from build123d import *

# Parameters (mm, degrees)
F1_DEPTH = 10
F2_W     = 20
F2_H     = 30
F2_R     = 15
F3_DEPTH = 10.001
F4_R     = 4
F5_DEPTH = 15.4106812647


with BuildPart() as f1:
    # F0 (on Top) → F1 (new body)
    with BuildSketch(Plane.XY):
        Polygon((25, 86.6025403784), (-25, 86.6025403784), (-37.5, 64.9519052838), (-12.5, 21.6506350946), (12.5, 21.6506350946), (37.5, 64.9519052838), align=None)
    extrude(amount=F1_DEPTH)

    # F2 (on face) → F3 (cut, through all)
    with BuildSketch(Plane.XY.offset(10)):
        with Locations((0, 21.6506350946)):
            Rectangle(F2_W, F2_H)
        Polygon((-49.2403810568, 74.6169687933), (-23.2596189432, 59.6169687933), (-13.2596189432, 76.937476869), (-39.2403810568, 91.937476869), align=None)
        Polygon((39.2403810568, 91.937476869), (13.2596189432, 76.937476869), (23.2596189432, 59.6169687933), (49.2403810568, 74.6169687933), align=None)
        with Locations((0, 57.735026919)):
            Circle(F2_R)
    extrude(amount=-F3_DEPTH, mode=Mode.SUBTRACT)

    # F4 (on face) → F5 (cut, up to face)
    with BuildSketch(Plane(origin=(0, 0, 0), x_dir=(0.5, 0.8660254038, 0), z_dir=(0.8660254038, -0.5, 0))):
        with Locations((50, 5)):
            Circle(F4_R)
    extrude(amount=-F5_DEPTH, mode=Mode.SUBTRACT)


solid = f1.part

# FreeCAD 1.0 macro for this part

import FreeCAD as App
import Part
import Sketcher
from FreeCAD import Vector
Q = App.Units.Quantity


def add_polygon(sketch, points):
    """Adds a closed chain of lines whose ends are joined by coincident constraints."""
    first, n = sketch.GeometryCount, len(points)
    for a, b in zip(points, points[1:] + points[:1]):
        sketch.addGeometry(Part.LineSegment(App.Vector(*a, 0), App.Vector(*b, 0)), False)
    for i in range(n):
        sketch.addConstraint(Sketcher.Constraint("Coincident", first + i, 2, first + (i + 1) % n, 1))

doc = App.newDocument("Part")
params = doc.addObject("Spreadsheet::Sheet", "Params")
for row, (alias, value) in enumerate([
    ("sketch1_width", "50 mm"),
    ("sketch1_width2", "25 mm"),
    ("sketch1_length", "25 mm"),
    ("pad1_length", "10 mm"),
    ("sketch2_diameter", "30 mm"),
    ("sketch2_width", "20 mm"),
    ("sketch2_height", "30 mm"),
    ("sketch2_length", "30 mm"),
    ("sketch2_length2", "20 mm"),
    ("sketch3_diameter", "8 mm"),
    ("pocket2_length", "15.410681 mm"),
], start=1):
    params.set(f"A{row}", alias)
    params.set(f"B{row}", "=" + value)
    params.setAlias(f"B{row}", alias)

body = doc.addObject("PartDesign::Body", "Body")

# Sketch on XY plane
sketch1 = doc.addObject("Sketcher::SketchObject", "Sketch")
body.addObject(sketch1)
sketch1.AttachmentSupport = (doc.XY_Plane, [""])
sketch1.MapMode = "FlatFace"
add_polygon(sketch1, [(25, 87), (-25, 87), (-38, 65), (-12, 22), (12, 22), (38, 65)])  # lines 0-5
sketch1.addConstraint(Sketcher.Constraint("Horizontal", 0))
sketch1.addConstraint(Sketcher.Constraint("Horizontal", 3))
sketch1.addConstraint(Sketcher.Constraint("Symmetric", 1, 2, 4, 2, -2))
sketch1.addConstraint(Sketcher.Constraint("Parallel", 1, 4))
sketch1.addConstraint(Sketcher.Constraint("Parallel", 2, 5))
sketch1.addConstraint(Sketcher.Constraint("Equal", 2, 4))
sketch1.addConstraint(Sketcher.Constraint("DistanceX", 0, 2, 0, 1, 50.0))
sketch1.addConstraint(Sketcher.Constraint("DistanceX", 3, 1, 3, 2, 25.0))
sketch1.addConstraint(Sketcher.Constraint("Angle", 1, Q("-120 deg")))
sketch1.addConstraint(Sketcher.Constraint("Distance", 1, 25.0))
sketch1.addConstraint(Sketcher.Constraint("DistanceY", -1, 1, 0, 2, 86.60254))
sketch1.setExpression("Constraints[12]", "Params.sketch1_width")
sketch1.setExpression("Constraints[13]", "Params.sketch1_width2")
sketch1.setExpression("Constraints[15]", "Params.sketch1_length")
pad1 = doc.addObject("PartDesign::Pad", "Pad")
body.addObject(pad1)
pad1.Profile = sketch1
pad1.setExpression("Length", "Params.pad1_length")

# Sketch on XY plane
sketch2 = doc.addObject("Sketcher::SketchObject", "Sketch001")
body.addObject(sketch2)
sketch2.AttachmentSupport = (doc.XY_Plane, [""])
sketch2.MapMode = "FlatFace"
sketch2.AttachmentOffset = App.Placement(Vector(0, 0, 10), App.Rotation())
add_polygon(sketch2, [(-10, 37), (-10, 7), (10, 7), (10, 37)])  # lines 0-3
add_polygon(sketch2, [(-49, 75), (-23, 60), (-13, 77), (-39, 92)])  # lines 4-7
add_polygon(sketch2, [(39, 92), (13, 77), (23, 60), (49, 75)])  # lines 8-11
sketch2.addGeometry(Part.Circle(Vector(0, 58, 0), Vector(0, 0, 1), 15), False)  # 12
sketch2.addConstraint(Sketcher.Constraint("Vertical", 0))
sketch2.addConstraint(Sketcher.Constraint("Horizontal", 1))
sketch2.addConstraint(Sketcher.Constraint("Vertical", 2))
sketch2.addConstraint(Sketcher.Constraint("Horizontal", 3))
sketch2.addConstraint(Sketcher.Constraint("Symmetric", 5, 2, 8, 2, -2))
sketch2.addConstraint(Sketcher.Constraint("Symmetric", 4, 2, 9, 2, -2))
sketch2.addConstraint(Sketcher.Constraint("Symmetric", 7, 2, 10, 2, -2))
sketch2.addConstraint(Sketcher.Constraint("Symmetric", 6, 2, 11, 2, -2))
sketch2.addConstraint(Sketcher.Constraint("PointOnObject", 12, 3, -2))
sketch2.addConstraint(Sketcher.Constraint("Perpendicular", 4, 5))
sketch2.addConstraint(Sketcher.Constraint("Perpendicular", 5, 6))
sketch2.addConstraint(Sketcher.Constraint("Perpendicular", 6, 7))
sketch2.addConstraint(Sketcher.Constraint("Diameter", 12, 30.0))
sketch2.addConstraint(Sketcher.Constraint("DistanceX", 1, 1, 1, 2, 20.0))
sketch2.addConstraint(Sketcher.Constraint("DistanceY", 0, 2, 0, 1, 30.0))
sketch2.addConstraint(Sketcher.Constraint("Angle", 4, Q("-30 deg")))
sketch2.addConstraint(Sketcher.Constraint("Distance", 4, 30.0))
sketch2.addConstraint(Sketcher.Constraint("Distance", 5, 20.0))
sketch2.addConstraint(Sketcher.Constraint("DistanceX", 0, 2, -1, 1, 10.0))
sketch2.addConstraint(Sketcher.Constraint("DistanceX", 5, 2, 10, 2, 62.5))
sketch2.addConstraint(Sketcher.Constraint("DistanceY", -1, 1, 4, 2, 59.616969))
sketch2.addConstraint(Sketcher.Constraint("DistanceY", 0, 2, 12, 3, 51.084392))
sketch2.addConstraint(Sketcher.Constraint("DistanceY", 12, 3, 4, 2, 1.881942))
sketch2.setExpression("Constraints[24]", "Params.sketch2_diameter")
sketch2.setExpression("Constraints[25]", "Params.sketch2_width")
sketch2.setExpression("Constraints[26]", "Params.sketch2_height")
sketch2.setExpression("Constraints[28]", "Params.sketch2_length")
sketch2.setExpression("Constraints[29]", "Params.sketch2_length2")
pocket1 = doc.addObject("PartDesign::Pocket", "Pocket")
body.addObject(pocket1)
pocket1.Profile = sketch2
pocket1.Type = "ThroughAll"

# Sketch on an angled plane
sketch3 = doc.addObject("Sketcher::SketchObject", "Sketch002")
body.addObject(sketch3)
sketch3.Placement = App.Placement(Vector(0, 0, 0), App.Rotation(Vector(0.5, 0.866025404, 0), Vector(0, 0, 1), Vector(0.866025404, -0.5, 0), "ZXY"))
sketch3.addGeometry(Part.Circle(Vector(50, 5, 0), Vector(0, 0, 1), 4), False)
sketch3.addConstraint(Sketcher.Constraint("Diameter", 0, 8.0))
sketch3.addConstraint(Sketcher.Constraint("DistanceX", -1, 1, 0, 3, 50.0))
sketch3.addConstraint(Sketcher.Constraint("DistanceY", -1, 1, 0, 3, 5.0))
sketch3.setExpression("Constraints[0]", "Params.sketch3_diameter")
pocket2 = doc.addObject("PartDesign::Pocket", "Pocket001")
body.addObject(pocket2)
pocket2.Profile = sketch3
pocket2.setExpression("Length", "Params.pocket2_length")

doc.recompute()
